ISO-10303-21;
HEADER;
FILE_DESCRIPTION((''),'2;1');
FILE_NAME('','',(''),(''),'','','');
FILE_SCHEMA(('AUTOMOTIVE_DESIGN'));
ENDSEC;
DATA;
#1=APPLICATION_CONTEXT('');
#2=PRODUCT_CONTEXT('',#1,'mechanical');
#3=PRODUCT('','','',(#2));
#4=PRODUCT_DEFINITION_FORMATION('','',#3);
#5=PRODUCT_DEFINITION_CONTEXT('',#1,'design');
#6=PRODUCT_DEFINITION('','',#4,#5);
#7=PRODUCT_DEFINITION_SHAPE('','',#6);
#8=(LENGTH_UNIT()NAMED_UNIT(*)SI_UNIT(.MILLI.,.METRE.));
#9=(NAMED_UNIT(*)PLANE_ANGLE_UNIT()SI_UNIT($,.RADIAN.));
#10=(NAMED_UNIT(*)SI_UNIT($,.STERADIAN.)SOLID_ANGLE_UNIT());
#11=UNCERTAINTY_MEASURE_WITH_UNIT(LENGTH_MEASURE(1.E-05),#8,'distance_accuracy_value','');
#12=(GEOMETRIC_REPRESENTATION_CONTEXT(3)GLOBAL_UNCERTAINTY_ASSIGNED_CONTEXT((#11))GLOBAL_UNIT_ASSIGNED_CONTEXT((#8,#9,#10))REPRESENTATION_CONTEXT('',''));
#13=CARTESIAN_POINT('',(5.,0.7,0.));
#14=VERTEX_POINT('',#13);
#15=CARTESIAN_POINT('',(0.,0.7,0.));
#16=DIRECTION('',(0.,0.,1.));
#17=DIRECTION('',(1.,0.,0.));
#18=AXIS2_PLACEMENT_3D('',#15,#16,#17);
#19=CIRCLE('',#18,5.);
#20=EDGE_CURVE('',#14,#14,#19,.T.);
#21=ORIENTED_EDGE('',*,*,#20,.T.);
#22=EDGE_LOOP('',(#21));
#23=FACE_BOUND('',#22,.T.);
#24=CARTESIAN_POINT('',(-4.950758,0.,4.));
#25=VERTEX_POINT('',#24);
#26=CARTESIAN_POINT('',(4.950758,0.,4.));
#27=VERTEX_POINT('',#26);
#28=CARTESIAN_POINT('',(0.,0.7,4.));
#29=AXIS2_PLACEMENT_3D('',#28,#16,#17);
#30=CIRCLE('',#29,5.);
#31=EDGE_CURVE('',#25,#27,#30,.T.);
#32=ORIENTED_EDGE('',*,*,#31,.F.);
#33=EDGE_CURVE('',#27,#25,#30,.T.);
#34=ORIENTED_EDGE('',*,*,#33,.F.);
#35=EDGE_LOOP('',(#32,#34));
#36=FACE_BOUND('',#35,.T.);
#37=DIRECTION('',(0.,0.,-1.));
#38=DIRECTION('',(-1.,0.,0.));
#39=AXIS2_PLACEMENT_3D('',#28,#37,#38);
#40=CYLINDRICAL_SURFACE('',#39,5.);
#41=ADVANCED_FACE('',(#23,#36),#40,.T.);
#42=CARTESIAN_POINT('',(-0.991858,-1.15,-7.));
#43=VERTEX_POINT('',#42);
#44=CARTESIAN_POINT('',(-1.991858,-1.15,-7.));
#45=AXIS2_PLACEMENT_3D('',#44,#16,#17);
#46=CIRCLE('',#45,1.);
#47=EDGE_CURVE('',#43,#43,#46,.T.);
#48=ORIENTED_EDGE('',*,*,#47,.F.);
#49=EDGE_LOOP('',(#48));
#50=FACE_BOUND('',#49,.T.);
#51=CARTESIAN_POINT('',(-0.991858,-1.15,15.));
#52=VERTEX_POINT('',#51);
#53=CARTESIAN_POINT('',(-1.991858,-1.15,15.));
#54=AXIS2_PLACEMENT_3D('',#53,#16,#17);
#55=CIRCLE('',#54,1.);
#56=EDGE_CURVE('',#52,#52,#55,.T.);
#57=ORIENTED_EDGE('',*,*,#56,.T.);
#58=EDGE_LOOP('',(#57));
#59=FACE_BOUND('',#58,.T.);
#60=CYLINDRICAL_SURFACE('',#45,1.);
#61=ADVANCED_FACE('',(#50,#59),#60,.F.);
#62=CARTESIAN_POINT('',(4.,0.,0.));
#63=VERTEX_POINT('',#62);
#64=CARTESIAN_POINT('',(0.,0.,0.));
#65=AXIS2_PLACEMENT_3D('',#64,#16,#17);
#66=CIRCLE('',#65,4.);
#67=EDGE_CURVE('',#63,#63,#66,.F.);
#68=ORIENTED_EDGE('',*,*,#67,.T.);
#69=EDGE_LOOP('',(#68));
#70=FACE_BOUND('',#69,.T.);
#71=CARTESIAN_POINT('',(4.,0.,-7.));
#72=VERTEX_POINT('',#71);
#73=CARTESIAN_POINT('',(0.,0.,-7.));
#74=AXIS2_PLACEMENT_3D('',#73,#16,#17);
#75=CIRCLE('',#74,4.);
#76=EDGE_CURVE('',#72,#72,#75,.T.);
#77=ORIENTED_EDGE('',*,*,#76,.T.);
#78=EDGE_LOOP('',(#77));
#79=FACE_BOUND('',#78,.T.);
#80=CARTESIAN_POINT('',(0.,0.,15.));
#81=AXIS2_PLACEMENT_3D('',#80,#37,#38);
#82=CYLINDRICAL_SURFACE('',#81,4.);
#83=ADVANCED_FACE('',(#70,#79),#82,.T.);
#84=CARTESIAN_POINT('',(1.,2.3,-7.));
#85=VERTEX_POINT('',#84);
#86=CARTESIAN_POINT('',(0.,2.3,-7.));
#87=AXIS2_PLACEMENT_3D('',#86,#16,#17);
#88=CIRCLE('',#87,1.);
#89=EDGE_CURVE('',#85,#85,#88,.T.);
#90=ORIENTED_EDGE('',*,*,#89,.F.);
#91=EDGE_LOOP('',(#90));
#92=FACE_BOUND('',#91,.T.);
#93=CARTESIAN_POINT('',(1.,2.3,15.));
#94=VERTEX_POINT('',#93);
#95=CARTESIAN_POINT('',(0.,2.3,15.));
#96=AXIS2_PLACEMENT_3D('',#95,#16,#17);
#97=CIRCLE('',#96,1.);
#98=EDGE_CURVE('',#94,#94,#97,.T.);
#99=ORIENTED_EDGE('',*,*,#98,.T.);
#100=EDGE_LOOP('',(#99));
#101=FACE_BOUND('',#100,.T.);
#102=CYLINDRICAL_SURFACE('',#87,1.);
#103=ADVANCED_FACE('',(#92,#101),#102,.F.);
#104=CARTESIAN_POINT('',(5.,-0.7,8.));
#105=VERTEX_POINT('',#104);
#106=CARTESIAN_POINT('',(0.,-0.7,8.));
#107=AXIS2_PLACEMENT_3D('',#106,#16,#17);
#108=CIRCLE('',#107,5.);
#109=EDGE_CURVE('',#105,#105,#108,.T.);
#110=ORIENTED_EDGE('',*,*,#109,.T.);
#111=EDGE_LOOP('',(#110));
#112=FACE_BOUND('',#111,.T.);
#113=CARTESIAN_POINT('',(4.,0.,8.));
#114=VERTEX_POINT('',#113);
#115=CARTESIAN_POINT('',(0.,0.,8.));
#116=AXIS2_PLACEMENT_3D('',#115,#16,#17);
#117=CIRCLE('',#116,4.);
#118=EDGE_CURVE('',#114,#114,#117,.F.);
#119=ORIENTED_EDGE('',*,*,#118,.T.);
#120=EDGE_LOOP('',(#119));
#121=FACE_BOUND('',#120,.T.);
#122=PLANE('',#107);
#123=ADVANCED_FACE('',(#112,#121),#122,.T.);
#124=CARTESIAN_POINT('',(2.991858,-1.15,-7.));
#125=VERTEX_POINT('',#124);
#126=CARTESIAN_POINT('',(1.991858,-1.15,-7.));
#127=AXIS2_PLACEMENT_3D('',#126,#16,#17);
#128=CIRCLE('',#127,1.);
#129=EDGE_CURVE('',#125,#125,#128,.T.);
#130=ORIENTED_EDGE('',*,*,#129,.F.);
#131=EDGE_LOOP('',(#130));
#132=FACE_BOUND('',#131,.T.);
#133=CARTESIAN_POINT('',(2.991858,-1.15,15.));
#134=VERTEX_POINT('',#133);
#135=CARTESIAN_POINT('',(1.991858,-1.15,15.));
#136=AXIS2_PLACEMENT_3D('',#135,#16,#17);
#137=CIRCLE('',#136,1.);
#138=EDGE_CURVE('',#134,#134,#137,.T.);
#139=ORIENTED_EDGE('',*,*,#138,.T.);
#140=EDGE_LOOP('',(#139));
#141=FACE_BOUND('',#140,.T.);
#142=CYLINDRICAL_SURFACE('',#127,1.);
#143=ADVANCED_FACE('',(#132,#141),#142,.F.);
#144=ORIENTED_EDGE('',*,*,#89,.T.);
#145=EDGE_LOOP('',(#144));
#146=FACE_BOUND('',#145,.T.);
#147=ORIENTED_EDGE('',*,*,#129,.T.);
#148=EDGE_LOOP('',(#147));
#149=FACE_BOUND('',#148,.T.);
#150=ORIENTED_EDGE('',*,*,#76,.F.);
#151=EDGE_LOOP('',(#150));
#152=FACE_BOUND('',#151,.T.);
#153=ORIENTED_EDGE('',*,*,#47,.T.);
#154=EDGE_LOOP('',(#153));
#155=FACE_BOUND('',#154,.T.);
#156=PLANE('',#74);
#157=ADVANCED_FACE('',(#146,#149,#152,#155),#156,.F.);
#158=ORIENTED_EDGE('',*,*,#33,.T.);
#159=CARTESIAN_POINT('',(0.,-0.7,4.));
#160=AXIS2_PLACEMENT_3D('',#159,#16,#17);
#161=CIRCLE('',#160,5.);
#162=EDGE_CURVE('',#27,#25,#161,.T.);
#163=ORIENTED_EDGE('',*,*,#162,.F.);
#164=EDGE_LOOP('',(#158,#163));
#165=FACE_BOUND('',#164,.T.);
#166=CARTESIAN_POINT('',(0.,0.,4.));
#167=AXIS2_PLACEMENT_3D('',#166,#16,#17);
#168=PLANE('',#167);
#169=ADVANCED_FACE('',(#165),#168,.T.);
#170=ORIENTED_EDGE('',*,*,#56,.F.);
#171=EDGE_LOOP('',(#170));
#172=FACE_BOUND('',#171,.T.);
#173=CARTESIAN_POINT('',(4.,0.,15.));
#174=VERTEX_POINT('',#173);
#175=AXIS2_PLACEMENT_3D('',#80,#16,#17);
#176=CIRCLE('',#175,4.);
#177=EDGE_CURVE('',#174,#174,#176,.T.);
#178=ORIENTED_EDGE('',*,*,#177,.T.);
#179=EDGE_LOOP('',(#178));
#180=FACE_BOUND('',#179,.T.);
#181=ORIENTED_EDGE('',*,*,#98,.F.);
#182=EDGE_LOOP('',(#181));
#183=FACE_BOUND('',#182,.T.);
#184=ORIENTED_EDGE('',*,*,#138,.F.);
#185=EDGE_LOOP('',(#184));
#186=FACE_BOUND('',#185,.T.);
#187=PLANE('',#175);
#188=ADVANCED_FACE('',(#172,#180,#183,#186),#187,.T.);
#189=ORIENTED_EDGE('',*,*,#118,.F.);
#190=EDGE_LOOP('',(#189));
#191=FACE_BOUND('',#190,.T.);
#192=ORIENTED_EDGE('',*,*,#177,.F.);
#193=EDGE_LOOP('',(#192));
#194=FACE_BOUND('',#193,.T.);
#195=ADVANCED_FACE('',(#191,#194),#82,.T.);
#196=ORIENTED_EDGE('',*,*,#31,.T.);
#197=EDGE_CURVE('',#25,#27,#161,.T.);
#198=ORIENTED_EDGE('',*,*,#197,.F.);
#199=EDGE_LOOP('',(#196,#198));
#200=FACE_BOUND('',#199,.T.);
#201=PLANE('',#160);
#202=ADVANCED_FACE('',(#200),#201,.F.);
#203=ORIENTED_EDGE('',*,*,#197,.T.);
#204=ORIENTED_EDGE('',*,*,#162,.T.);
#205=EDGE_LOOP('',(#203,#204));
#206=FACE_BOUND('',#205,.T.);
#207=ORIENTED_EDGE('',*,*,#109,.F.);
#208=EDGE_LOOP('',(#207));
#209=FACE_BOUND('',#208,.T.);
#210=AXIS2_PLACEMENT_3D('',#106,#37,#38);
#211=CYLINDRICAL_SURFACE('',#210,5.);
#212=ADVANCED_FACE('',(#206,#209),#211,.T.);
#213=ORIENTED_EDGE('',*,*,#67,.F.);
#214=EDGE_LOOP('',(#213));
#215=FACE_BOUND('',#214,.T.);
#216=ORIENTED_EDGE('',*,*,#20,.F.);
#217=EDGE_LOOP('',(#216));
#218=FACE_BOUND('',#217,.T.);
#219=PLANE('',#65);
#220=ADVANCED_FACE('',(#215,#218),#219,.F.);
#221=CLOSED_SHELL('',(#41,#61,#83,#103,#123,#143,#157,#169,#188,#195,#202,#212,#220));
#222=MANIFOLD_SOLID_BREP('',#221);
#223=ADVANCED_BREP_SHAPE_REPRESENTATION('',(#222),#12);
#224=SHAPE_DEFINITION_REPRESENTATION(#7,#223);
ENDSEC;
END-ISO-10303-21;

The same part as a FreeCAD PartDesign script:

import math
import FreeCAD as App
import Part
import Sketcher
from FreeCAD import Vector

doc = App.newDocument("Part")
body = doc.addObject("PartDesign::Body", "Body")

# Sketch on XY plane
sketch1 = doc.addObject("Sketcher::SketchObject", "Sketch")
body.addObject(sketch1)
sketch1.AttachmentSupport = (doc.XY_Plane, [""])
sketch1.MapMode = "FlatFace"
sketch1.addGeometry(Part.Circle(Vector(0, 1, 0), Vector(0, 0, 1), 5), False)
sketch1.addConstraint(Sketcher.Constraint("PointOnObject", 0, 3, -2))
sketch1.addConstraint(Sketcher.Constraint("Diameter", 0, 10.0))
sketch1.addConstraint(Sketcher.Constraint("DistanceY", -1, 1, 0, 3, 0.7))
pad1 = doc.addObject("PartDesign::Pad", "Pad")
body.addObject(pad1)
pad1.Profile = sketch1
pad1.Length = 4

# Sketch on XY plane
sketch2 = doc.addObject("Sketcher::SketchObject", "Sketch001")
body.addObject(sketch2)
sketch2.AttachmentSupport = (doc.XY_Plane, [""])
sketch2.MapMode = "FlatFace"
sketch2.AttachmentOffset = App.Placement(Vector(0, 0, 4), App.Rotation())
sketch2.addGeometry(Part.Circle(Vector(0, -1, 0), Vector(0, 0, 1), 5), False)
sketch2.addConstraint(Sketcher.Constraint("PointOnObject", 0, 3, -2))
sketch2.addConstraint(Sketcher.Constraint("Diameter", 0, 10.0))
sketch2.addConstraint(Sketcher.Constraint("DistanceY", 0, 3, -1, 1, 0.7))
pad2 = doc.addObject("PartDesign::Pad", "Pad001")
body.addObject(pad2)
pad2.Profile = sketch2
pad2.Length = 4

# Sketch on XY plane
sketch3 = doc.addObject("Sketcher::SketchObject", "Sketch002")
body.addObject(sketch3)
sketch3.AttachmentSupport = (doc.XY_Plane, [""])
sketch3.MapMode = "FlatFace"
sketch3.addGeometry(Part.Circle(Vector(0, 0, 0), Vector(0, 0, 1), 4), False)
sketch3.addConstraint(Sketcher.Constraint("Coincident", 0, 3, -1, 1))
sketch3.addConstraint(Sketcher.Constraint("Diameter", 0, 8.0))
pad3 = doc.addObject("PartDesign::Pad", "Pad002")
body.addObject(pad3)
pad3.Profile = sketch3
pad3.Type = "TwoLengths"
pad3.Length = 15
pad3.Length2 = 7

# Sketch on XY plane
sketch4 = doc.addObject("Sketcher::SketchObject", "Sketch003")
body.addObject(sketch4)
sketch4.AttachmentSupport = (doc.XY_Plane, [""])
sketch4.MapMode = "FlatFace"
sketch4.addGeometry(Part.ArcOfCircle(Part.Circle(Vector(0, 2.3, 0), Vector(0, 0, 1), 1), math.radians(90), math.radians(270)), False)
sketch4.addGeometry(Part.ArcOfCircle(Part.Circle(Vector(0, 2.3, 0), Vector(0, 0, 1), 1), math.radians(-90), math.radians(0)), False)
sketch4.addGeometry(Part.ArcOfCircle(Part.Circle(Vector(0, 2.3, 0), Vector(0, 0, 1), 1), math.radians(0), math.radians(90)), False)
sketch4.addGeometry(Part.Circle(Vector(-2, -1.1, 0), Vector(0, 0, 1), 1), False)
sketch4.addGeometry(Part.Circle(Vector(2, -1.1, 0), Vector(0, 0, 1), 1), False)
sketch4.addConstraint(Sketcher.Constraint("Tangent", 0, 2, 1, 1))
sketch4.addConstraint(Sketcher.Constraint("Tangent", 1, 2, 2, 1))
sketch4.addConstraint(Sketcher.Constraint("Tangent", 2, 2, 0, 1))
sketch4.addConstraint(Sketcher.Constraint("Equal", 2, 3))
sketch4.addConstraint(Sketcher.Constraint("Equal", 3, 4))
sketch4.addConstraint(Sketcher.Constraint("Symmetric", 3, 3, 4, 3, -2))
sketch4.addConstraint(Sketcher.Constraint("PointOnObject", 0, 3, -2))
sketch4.addConstraint(Sketcher.Constraint("PointOnObject", 0, 2, -2))
sketch4.addConstraint(Sketcher.Constraint("PointOnObject", 2, 2, -2))
sketch4.addConstraint(Sketcher.Constraint("Horizontal", 2, 3, 1, 2))
sketch4.addConstraint(Sketcher.Constraint("Diameter", 3, 2.0))
sketch4.addConstraint(Sketcher.Constraint("DistanceY", -1, 1, 0, 3, 2.3))
sketch4.addConstraint(Sketcher.Constraint("DistanceY", 3, 3, -1, 1, 1.15))
sketch4.addConstraint(Sketcher.Constraint("DistanceX", 3, 3, -1, 1, 1.991858))
pocket1 = doc.addObject("PartDesign::Pocket", "Pocket")
body.addObject(pocket1)
pocket1.Profile = sketch4
pocket1.Type = "ThroughAll"
pocket1.Midplane = True

doc.recompute()
